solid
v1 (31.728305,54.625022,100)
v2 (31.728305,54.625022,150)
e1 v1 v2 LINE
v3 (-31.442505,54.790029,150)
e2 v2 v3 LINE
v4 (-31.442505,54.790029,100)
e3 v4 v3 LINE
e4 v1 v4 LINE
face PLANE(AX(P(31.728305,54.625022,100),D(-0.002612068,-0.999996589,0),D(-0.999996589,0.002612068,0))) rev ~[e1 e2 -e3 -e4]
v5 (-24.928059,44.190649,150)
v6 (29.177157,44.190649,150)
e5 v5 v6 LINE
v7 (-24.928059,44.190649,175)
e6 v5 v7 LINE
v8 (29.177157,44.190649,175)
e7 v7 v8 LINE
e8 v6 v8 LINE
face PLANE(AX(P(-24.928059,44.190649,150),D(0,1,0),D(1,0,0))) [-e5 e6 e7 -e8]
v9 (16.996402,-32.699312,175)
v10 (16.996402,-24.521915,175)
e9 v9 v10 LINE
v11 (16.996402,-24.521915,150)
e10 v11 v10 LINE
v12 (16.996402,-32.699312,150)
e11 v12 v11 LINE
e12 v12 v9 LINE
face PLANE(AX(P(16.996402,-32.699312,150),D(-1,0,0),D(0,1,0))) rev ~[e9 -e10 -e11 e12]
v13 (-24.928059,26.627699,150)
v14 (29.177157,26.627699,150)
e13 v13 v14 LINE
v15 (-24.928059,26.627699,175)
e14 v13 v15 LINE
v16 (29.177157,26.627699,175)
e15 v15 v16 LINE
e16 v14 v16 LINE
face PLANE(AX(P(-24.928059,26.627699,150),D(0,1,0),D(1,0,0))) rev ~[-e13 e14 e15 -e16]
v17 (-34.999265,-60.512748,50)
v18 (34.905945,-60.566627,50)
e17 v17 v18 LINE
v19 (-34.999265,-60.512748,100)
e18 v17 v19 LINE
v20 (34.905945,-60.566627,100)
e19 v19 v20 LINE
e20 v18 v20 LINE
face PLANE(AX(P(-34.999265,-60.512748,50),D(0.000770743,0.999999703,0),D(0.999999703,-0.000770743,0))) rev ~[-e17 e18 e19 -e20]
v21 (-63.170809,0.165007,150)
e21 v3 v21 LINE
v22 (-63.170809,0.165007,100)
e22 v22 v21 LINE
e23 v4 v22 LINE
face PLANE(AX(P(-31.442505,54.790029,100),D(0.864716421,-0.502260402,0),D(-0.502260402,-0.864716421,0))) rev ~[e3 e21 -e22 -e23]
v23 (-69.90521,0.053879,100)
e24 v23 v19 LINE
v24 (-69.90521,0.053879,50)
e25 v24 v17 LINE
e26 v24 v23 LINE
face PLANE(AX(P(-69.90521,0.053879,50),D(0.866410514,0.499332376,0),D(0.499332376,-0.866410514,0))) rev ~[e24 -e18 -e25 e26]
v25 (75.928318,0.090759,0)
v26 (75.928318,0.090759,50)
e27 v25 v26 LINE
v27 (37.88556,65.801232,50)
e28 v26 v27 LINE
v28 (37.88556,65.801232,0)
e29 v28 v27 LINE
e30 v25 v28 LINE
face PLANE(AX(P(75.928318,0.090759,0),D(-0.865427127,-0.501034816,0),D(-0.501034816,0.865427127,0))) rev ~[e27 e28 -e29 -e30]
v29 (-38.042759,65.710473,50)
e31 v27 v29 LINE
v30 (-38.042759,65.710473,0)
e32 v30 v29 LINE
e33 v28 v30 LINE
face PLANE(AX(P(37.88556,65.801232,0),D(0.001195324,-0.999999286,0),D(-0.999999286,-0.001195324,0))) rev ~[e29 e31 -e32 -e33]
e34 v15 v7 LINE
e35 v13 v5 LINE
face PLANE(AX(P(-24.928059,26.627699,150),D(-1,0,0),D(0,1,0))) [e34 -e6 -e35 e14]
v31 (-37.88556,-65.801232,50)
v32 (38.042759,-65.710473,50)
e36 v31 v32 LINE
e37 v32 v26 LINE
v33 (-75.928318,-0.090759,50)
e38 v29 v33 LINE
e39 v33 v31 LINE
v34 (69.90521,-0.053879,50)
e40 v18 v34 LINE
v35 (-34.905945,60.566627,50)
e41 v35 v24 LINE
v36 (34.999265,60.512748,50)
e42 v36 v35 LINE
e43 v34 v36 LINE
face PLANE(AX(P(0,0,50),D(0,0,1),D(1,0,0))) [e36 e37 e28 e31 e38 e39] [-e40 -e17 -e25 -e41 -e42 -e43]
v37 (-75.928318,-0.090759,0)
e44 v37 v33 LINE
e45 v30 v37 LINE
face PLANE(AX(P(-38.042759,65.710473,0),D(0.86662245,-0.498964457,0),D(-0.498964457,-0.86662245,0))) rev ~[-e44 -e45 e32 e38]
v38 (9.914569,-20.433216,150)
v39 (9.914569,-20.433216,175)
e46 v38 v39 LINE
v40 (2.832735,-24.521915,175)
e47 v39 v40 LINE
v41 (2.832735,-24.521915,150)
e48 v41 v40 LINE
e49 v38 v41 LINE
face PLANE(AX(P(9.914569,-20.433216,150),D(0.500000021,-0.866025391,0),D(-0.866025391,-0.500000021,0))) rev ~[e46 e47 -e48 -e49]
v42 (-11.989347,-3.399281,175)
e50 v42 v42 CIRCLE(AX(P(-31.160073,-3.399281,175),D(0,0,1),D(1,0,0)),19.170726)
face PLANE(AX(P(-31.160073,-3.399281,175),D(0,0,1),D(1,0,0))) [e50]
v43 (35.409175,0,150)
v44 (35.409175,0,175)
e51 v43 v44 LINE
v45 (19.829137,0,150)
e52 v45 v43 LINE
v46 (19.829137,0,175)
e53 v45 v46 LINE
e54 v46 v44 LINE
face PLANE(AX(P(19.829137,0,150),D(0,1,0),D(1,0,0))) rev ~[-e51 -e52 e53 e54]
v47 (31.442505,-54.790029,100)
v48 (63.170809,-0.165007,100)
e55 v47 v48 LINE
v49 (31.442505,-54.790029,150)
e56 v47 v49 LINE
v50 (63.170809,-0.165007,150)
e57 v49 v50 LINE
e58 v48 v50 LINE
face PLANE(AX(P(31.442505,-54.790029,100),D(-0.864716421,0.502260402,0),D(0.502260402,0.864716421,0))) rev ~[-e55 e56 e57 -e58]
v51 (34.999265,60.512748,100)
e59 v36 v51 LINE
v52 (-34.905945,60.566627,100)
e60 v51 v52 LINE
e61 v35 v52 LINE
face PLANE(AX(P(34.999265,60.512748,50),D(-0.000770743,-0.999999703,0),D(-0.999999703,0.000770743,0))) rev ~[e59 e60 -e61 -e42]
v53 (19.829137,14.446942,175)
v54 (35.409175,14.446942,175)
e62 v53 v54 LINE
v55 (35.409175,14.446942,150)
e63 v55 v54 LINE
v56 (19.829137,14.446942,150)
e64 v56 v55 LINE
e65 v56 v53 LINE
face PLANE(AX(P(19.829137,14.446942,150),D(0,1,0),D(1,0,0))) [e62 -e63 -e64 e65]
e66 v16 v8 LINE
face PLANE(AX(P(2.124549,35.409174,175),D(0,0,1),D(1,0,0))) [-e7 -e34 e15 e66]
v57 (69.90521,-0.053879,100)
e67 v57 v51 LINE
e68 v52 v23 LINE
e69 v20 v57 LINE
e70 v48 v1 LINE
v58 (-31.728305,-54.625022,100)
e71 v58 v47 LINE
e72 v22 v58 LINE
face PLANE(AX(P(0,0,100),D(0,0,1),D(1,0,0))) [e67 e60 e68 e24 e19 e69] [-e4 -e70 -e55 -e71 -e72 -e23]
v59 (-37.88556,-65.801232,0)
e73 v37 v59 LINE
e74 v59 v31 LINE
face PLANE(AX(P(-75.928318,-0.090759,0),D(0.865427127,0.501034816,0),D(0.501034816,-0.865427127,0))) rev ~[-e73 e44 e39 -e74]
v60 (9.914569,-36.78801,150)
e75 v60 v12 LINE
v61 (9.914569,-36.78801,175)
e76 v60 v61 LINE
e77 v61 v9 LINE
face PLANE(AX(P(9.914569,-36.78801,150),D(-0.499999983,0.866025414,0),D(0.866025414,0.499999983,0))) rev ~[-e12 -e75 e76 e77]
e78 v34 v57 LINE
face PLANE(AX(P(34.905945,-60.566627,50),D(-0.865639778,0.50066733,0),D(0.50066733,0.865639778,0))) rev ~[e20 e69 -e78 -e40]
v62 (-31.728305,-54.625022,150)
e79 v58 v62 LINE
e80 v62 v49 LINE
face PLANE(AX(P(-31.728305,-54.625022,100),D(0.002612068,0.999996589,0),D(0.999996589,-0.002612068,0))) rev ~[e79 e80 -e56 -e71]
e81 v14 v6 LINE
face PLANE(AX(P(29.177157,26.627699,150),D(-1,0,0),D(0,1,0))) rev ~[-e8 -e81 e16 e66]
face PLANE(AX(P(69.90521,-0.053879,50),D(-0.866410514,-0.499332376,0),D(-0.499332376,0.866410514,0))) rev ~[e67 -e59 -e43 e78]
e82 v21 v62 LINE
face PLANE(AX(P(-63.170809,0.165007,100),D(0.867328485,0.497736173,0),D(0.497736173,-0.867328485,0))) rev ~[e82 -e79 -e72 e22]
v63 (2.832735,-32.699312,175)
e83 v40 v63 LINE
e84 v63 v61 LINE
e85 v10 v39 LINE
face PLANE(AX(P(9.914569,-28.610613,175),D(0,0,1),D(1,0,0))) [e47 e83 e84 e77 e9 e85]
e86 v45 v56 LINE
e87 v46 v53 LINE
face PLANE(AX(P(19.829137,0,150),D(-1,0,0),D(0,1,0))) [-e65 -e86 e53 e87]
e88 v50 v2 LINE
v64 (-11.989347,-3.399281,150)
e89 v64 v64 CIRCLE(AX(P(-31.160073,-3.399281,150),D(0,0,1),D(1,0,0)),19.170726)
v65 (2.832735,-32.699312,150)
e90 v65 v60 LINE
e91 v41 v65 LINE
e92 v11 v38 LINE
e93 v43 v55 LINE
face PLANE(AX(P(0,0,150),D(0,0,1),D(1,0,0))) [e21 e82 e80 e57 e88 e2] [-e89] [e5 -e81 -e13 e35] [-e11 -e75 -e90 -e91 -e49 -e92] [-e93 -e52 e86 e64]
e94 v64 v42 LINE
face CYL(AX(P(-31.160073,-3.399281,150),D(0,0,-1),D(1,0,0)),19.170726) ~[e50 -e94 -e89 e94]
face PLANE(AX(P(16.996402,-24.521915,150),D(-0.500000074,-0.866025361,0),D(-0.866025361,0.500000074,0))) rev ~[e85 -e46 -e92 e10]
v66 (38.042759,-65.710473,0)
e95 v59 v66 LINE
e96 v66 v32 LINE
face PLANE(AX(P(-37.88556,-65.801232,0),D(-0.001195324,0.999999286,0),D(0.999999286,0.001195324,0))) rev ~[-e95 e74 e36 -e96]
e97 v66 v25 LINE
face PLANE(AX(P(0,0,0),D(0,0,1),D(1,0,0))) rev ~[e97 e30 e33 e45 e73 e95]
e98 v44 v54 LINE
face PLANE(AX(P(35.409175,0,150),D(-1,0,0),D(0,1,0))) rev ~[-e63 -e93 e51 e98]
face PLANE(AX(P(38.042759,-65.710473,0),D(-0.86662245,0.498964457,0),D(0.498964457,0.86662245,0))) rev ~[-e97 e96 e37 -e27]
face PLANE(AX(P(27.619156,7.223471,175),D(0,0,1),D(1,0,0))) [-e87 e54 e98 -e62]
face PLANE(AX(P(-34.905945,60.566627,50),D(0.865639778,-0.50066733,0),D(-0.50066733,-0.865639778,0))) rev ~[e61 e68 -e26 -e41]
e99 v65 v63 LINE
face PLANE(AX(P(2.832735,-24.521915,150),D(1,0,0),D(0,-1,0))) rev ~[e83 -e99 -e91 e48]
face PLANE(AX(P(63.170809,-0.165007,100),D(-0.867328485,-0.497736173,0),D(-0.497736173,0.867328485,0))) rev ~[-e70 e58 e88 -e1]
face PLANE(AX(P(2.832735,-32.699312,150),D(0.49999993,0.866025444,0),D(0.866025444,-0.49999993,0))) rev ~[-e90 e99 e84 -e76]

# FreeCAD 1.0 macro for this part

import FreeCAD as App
import Part
import Sketcher

V = App.Vector
Q = App.Units.Quantity


def add_polygon(sketch, points):
    """Adds a closed chain of lines whose ends are joined by coincident constraints."""
    first, n = sketch.GeometryCount, len(points)
    for a, b in zip(points, points[1:] + points[:1]):
        sketch.addGeometry(Part.LineSegment(App.Vector(*a, 0), App.Vector(*b, 0)), False)
    for i in range(n):
        sketch.addConstraint(Sketcher.Constraint("Coincident", first + i, 2, first + (i + 1) % n, 1))

doc = App.newDocument("Part")
body = doc.addObject("PartDesign::Body", "Body")

# Sketch on XY plane
sketch1 = doc.addObject("Sketcher::SketchObject", "Sketch")
body.addObject(sketch1)
sketch1.AttachmentSupport = (doc.XY_Plane, [""])
sketch1.MapMode = "FlatFace"
add_polygon(sketch1, [(-38, 66), (-76, 0), (-38, -66), (38, -66), (76, 0), (38, 66)])  # lines 0-5
sketch1.addConstraint(Sketcher.Constraint("Symmetric", 0, 2, 3, 2, -1, 1))
sketch1.addConstraint(Sketcher.Constraint("Symmetric", 1, 2, 4, 2, -1, 1))
sketch1.addConstraint(Sketcher.Constraint("Symmetric", 2, 2, 5, 2, -1, 1))
sketch1.addConstraint(Sketcher.Constraint("Equal", 0, 1))
sketch1.addConstraint(Sketcher.Constraint("Equal", 1, 2))
sketch1.addConstraint(Sketcher.Constraint("DistanceX", 4, 2, 2, 2, 0.157199))
sketch1.addConstraint(Sketcher.Constraint("DistanceX", 0, 2, -1, 1, 75.928318))
sketch1.addConstraint(Sketcher.Constraint("DistanceY", 0, 2, -1, 1, 0.090759))
sketch1.addConstraint(Sketcher.Constraint("DistanceX", 1, 2, -1, 1, 37.88556))
pad1 = doc.addObject("PartDesign::Pad", "Pad")
body.addObject(pad1)
pad1.Profile = sketch1
pad1.Length = 50

# Sketch on XY plane
sketch2 = doc.addObject("Sketcher::SketchObject", "Sketch001")
body.addObject(sketch2)
sketch2.AttachmentSupport = (doc.XY_Plane, [""])
sketch2.MapMode = "FlatFace"
sketch2.AttachmentOffset = App.Placement(V(0, 0, 50), App.Rotation())
add_polygon(sketch2, [(-35, 61), (-70, 0), (-35, -61), (35, -61), (70, 0), (35, 61)])  # lines 0-5
sketch2.addConstraint(Sketcher.Constraint("Symmetric", 0, 2, 3, 2, -1, 1))
sketch2.addConstraint(Sketcher.Constraint("Symmetric", 1, 2, 4, 2, -1, 1))
sketch2.addConstraint(Sketcher.Constraint("Symmetric", 2, 2, 5, 2, -1, 1))
sketch2.addConstraint(Sketcher.Constraint("Equal", 0, 1))
sketch2.addConstraint(Sketcher.Constraint("Equal", 1, 2))
sketch2.addConstraint(Sketcher.Constraint("Distance", 0, 69.90523))
sketch2.addConstraint(Sketcher.Constraint("DistanceX", 0, 2, -1, 1, 69.90521))
sketch2.addConstraint(Sketcher.Constraint("DistanceY", -1, 1, 0, 2, 0.053879))
sketch2.addConstraint(Sketcher.Constraint("DistanceY", 1, 2, -1, 1, 60.512748))
pad2 = doc.addObject("PartDesign::Pad", "Pad001")
body.addObject(pad2)
pad2.Profile = sketch2
pad2.Length = 50

# Sketch on XY plane
sketch3 = doc.addObject("Sketcher::SketchObject", "Sketch002")
body.addObject(sketch3)
sketch3.AttachmentSupport = (doc.XY_Plane, [""])
sketch3.MapMode = "FlatFace"
sketch3.AttachmentOffset = App.Placement(V(0, 0, 100), App.Rotation())
add_polygon(sketch3, [(-31, 55), (-63, 0), (-32, -55), (31, -55), (63, 0), (32, 55)])  # lines 0-5
sketch3.addConstraint(Sketcher.Constraint("Symmetric", 0, 2, 3, 2, -1, 1))
sketch3.addConstraint(Sketcher.Constraint("Symmetric", 1, 2, 4, 2, -1, 1))
sketch3.addConstraint(Sketcher.Constraint("Symmetric", 2, 2, 5, 2, -1, 1))
sketch3.addConstraint(Sketcher.Constraint("Equal", 0, 1))
sketch3.addConstraint(Sketcher.Constraint("Equal", 1, 2))
sketch3.addConstraint(Sketcher.Constraint("DistanceX", 2, 2, 4, 2, 0.2858))
sketch3.addConstraint(Sketcher.Constraint("DistanceX", 0, 2, -1, 1, 63.170809))
sketch3.addConstraint(Sketcher.Constraint("DistanceY", 2, 2, -1, 1, 54.790029))
sketch3.addConstraint(Sketcher.Constraint("DistanceY", 1, 2, 0, 2, 54.790029))
pad3 = doc.addObject("PartDesign::Pad", "Pad002")
body.addObject(pad3)
pad3.Profile = sketch3
pad3.Length = 50

# Sketch on XY plane
sketch4 = doc.addObject("Sketcher::SketchObject", "Sketch003")
body.addObject(sketch4)
sketch4.AttachmentSupport = (doc.XY_Plane, [""])
sketch4.MapMode = "FlatFace"
sketch4.AttachmentOffset = App.Placement(V(0, 0, 150), App.Rotation())
add_polygon(sketch4, [(-25, 44), (-25, 27), (29, 27), (29, 44)])  # lines 0-3
sketch4.addGeometry(Part.Circle(V(-31, -3, 0), V(0, 0, 1), 19), False)  # 4
add_polygon(sketch4, [(20, 14), (20, 0), (35, 0), (35, 14)])  # lines 5-8
add_polygon(sketch4, [(3, -25), (3, -33), (10, -37), (17, -33), (17, -25), (10, -20)])  # lines 9-14
sketch4.addConstraint(Sketcher.Constraint("Vertical", 0))
sketch4.addConstraint(Sketcher.Constraint("Horizontal", 1))
sketch4.addConstraint(Sketcher.Constraint("Vertical", 2))
sketch4.addConstraint(Sketcher.Constraint("Horizontal", 3))
sketch4.addConstraint(Sketcher.Constraint("Vertical", 5))
sketch4.addConstraint(Sketcher.Constraint("Horizontal", 6))
sketch4.addConstraint(Sketcher.Constraint("Vertical", 7))
sketch4.addConstraint(Sketcher.Constraint("Horizontal", 8))
sketch4.addConstraint(Sketcher.Constraint("Vertical", 9))
sketch4.addConstraint(Sketcher.Constraint("Vertical", 12))
sketch4.addConstraint(Sketcher.Constraint("PointOnObject", 5, 2, -1))
sketch4.addConstraint(Sketcher.Constraint("Parallel", 10, 13))
sketch4.addConstraint(Sketcher.Constraint("Parallel", 11, 14))
sketch4.addConstraint(Sketcher.Constraint("Horizontal", 9, 2, 11, 2))
sketch4.addConstraint(Sketcher.Constraint("Horizontal", 12, 2, 14, 2))
sketch4.addConstraint(Sketcher.Constraint("Vertical", 10, 2, 13, 2))
sketch4.addConstraint(Sketcher.Constraint("Angle", 10, Q("-29.999995 deg")))
sketch4.addConstraint(Sketcher.Constraint("Diameter", 4, 38.341452))
sketch4.addConstraint(Sketcher.Constraint("DistanceY", 0, 2, 0, 1, 17.56295))
sketch4.addConstraint(Sketcher.Constraint("DistanceY", -1, 1, 0, 2, 26.627699))
sketch4.addConstraint(Sketcher.Constraint("DistanceX", -1, 1, 11, 2, 16.996402))
sketch4.addConstraint(Sketcher.Constraint("DistanceX", 9, 2, 5, 2, 16.996402))
sketch4.addConstraint(Sketcher.Constraint("DistanceY", 10, 2, 9, 2, 4.088698))
sketch4.addConstraint(Sketcher.Constraint("DistanceX", 1, 1, 1, 2, 54.105216))
sketch4.addConstraint(Sketcher.Constraint("DistanceX", 6, 1, 6, 2, 15.580038))
sketch4.addConstraint(Sketcher.Constraint("DistanceY", 5, 2, 5, 1, 14.446942))
sketch4.addConstraint(Sketcher.Constraint("DistanceY", 9, 2, 9, 1, 8.177397))
sketch4.addConstraint(Sketcher.Constraint("DistanceY", 4, 3, -1, 1, 3.399281))
sketch4.addConstraint(Sketcher.Constraint("DistanceX", 0, 2, -1, 1, 24.928059))
sketch4.addConstraint(Sketcher.Constraint("DistanceY", 10, 2, -1, 1, 36.78801))
sketch4.addConstraint(Sketcher.Constraint("DistanceX", 4, 3, 1, 2, 60.33723))
pad4 = doc.addObject("PartDesign::Pad", "Pad003")
body.addObject(pad4)
pad4.Profile = sketch4
pad4.Length = 25

doc.recompute()
